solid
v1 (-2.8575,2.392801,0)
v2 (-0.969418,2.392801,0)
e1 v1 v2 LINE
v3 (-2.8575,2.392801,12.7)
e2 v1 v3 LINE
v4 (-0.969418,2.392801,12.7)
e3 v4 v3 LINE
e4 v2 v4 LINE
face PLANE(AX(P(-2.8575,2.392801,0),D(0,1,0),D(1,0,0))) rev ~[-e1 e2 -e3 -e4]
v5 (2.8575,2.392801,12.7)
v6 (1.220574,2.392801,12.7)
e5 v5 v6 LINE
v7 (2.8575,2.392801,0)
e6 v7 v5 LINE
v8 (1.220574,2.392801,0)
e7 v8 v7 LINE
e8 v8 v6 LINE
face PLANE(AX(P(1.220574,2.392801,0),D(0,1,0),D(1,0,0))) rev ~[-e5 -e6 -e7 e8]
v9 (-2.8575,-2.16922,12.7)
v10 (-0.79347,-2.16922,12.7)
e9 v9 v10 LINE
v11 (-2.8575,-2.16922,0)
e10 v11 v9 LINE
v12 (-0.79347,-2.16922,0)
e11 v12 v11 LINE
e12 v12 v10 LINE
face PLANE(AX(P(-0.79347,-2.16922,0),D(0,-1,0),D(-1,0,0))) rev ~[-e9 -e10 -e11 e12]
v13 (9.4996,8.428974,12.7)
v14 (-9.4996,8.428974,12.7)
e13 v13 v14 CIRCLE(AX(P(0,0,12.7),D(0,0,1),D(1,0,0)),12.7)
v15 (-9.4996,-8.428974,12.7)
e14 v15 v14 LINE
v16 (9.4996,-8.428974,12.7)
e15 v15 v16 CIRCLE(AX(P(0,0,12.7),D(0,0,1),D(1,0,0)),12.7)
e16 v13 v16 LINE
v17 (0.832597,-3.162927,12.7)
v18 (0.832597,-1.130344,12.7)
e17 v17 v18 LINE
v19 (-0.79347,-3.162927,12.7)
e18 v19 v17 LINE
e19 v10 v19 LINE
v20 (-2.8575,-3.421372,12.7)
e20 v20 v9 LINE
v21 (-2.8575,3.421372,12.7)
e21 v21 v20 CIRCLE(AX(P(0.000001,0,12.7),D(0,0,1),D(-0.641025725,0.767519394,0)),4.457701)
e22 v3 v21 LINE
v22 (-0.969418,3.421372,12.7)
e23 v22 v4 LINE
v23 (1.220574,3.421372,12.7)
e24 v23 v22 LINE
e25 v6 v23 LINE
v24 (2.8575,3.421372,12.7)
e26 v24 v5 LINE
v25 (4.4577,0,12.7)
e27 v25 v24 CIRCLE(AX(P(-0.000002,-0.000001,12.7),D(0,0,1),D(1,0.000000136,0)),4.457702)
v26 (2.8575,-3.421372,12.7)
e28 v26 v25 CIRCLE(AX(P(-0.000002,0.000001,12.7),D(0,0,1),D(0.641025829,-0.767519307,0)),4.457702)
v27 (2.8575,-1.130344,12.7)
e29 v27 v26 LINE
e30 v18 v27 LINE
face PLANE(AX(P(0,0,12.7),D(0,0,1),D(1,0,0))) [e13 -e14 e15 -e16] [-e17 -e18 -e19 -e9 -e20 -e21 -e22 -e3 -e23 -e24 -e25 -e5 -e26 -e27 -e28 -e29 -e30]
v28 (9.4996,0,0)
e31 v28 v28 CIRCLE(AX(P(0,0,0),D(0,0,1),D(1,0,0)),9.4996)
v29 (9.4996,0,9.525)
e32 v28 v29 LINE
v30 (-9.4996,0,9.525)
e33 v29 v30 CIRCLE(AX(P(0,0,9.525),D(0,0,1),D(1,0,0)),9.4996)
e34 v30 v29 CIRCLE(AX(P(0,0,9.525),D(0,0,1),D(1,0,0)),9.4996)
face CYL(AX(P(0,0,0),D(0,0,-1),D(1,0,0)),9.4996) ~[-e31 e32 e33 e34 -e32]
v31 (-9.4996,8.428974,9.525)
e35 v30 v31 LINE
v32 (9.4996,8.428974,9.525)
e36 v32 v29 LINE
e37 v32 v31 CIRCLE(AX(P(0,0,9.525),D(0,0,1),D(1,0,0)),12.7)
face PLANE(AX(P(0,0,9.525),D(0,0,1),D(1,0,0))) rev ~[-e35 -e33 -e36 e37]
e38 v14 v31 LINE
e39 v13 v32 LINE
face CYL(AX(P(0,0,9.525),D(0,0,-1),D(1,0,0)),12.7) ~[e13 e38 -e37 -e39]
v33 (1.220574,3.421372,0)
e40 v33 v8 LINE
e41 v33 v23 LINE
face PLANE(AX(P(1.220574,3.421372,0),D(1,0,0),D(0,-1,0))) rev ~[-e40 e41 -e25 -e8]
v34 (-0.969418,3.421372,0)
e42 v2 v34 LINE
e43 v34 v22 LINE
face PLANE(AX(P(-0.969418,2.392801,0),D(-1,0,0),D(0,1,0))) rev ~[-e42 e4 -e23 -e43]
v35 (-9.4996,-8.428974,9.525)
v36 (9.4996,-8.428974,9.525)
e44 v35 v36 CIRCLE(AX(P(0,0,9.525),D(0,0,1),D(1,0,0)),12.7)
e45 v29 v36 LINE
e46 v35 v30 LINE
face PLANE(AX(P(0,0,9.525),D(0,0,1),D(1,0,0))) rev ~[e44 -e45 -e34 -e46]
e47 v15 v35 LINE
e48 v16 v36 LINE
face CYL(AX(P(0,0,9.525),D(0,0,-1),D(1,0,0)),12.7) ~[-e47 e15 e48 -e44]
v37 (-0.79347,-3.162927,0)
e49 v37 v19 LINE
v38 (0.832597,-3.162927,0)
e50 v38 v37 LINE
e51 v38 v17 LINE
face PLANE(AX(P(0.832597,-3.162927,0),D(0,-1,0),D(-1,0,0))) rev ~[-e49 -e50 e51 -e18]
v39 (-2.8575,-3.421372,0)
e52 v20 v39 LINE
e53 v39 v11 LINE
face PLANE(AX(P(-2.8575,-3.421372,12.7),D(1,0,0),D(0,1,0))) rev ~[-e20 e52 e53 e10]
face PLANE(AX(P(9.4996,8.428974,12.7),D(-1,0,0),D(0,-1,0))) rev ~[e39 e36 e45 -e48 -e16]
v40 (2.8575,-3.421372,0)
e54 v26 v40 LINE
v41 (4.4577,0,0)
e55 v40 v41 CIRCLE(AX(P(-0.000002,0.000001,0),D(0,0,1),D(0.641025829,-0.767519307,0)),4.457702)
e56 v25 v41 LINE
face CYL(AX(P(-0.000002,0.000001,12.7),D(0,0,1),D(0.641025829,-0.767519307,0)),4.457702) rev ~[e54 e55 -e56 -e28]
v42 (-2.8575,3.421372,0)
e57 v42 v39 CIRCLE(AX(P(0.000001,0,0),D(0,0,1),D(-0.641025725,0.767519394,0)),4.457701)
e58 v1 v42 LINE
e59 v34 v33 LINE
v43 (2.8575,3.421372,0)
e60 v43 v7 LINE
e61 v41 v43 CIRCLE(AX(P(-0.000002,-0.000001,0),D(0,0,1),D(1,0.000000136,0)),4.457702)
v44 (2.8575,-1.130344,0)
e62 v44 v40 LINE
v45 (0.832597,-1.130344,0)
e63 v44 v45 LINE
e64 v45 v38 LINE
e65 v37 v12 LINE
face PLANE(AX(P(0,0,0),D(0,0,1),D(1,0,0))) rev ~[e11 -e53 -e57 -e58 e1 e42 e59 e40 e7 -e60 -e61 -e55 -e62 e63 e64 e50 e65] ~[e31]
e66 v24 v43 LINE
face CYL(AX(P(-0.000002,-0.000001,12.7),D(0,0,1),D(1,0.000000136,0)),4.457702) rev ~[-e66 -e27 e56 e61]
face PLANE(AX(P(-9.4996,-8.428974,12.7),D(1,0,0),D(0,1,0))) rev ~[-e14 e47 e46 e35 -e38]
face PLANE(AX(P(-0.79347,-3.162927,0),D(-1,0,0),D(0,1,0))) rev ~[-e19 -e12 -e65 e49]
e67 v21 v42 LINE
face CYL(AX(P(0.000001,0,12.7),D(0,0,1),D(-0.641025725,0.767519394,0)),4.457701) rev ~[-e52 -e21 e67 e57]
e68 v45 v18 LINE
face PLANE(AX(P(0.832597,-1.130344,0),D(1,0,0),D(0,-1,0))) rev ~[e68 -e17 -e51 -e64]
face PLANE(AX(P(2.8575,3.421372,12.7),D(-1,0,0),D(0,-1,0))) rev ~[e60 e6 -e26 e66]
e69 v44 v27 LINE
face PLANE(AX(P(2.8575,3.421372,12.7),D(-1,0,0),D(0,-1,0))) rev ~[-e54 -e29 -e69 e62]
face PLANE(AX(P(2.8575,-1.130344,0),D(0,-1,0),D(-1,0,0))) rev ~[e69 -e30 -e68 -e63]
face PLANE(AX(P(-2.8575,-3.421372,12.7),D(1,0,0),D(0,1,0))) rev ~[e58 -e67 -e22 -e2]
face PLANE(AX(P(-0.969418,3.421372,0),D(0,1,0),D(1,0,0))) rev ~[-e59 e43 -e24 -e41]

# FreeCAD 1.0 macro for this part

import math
import FreeCAD as App
import Part
import Sketcher

V = App.Vector
Q = App.Units.Quantity

doc = App.newDocument("Part")
body = doc.addObject("PartDesign::Body", "Body")

# Sketch on XY plane
sketch1 = body.newObject("Sketcher::SketchObject", "Sketch")
sketch1.AttachmentSupport = (doc.getObject("XY_Plane"), [""])
sketch1.MapMode = "FlatFace"
sketch1.addGeometry(Part.Circle(V(0, 0, 0), V(0, 0, 1), 9), False)
sketch1.addConstraint(Sketcher.Constraint("Coincident", 0, 3, -1, 1))
sketch1.addConstraint(Sketcher.Constraint("Diameter", 0, Q("0.748 in")))
pad1 = body.newObject("PartDesign::Pad", "Pad")
pad1.Profile = sketch1
pad1.Length = Q("0.375 in")

# Sketch on XY plane
sketch2 = body.newObject("Sketcher::SketchObject", "Sketch001")
sketch2.AttachmentSupport = (doc.getObject("XY_Plane"), [""])
sketch2.MapMode = "FlatFace"
sketch2.AttachmentOffset = App.Placement(V(0, 0, 0.375 * 25.4), App.Rotation())
sketch2.addGeometry(Part.Circle(V(0, 0, 0), V(0, 0, 1), 13), False)
sketch2.addConstraint(Sketcher.Constraint("Coincident", 0, 3, -1, 1))
sketch2.addConstraint(Sketcher.Constraint("Diameter", 0, Q("1 in")))
pad2 = body.newObject("PartDesign::Pad", "Pad001")
pad2.Profile = sketch2
pad2.Length = Q("0.125 in")

# Sketch on XY plane
sketch3 = body.newObject("Sketcher::SketchObject", "Sketch002")
sketch3.AttachmentSupport = (doc.getObject("XY_Plane"), [""])
sketch3.MapMode = "FlatFace"
sketch3.AttachmentOffset = App.Placement(V(0, 0, 0.5 * 25.4), App.Rotation())
sketch3.addGeometry(Part.ArcOfCircle(Part.Circle(V(0, 0, 0), V(0, 0, 1), 13), math.radians(138), math.radians(222)), False)
sketch3.addGeometry(Part.LineSegment(V(-9, -8, 0), V(-9, 8, 0)), False)
sketch3.addGeometry(Part.LineSegment(V(9, 8, 0), V(9, -8, 0)), False)
sketch3.addGeometry(Part.ArcOfCircle(Part.Circle(V(0, 0, 0), V(0, 0, 1), 13), math.radians(-42), math.radians(0)), False)
sketch3.addGeometry(Part.ArcOfCircle(Part.Circle(V(0, 0, 0), V(0, 0, 1), 13), math.radians(0), math.radians(42)), False)
sketch3.addConstraint(Sketcher.Constraint("Coincident", 0, 1, 1, 2))
sketch3.addConstraint(Sketcher.Constraint("Coincident", 1, 1, 0, 2))
sketch3.addConstraint(Sketcher.Constraint("Coincident", 2, 2, 3, 1))
sketch3.addConstraint(Sketcher.Constraint("Tangent", 3, 2, 4, 1))
sketch3.addConstraint(Sketcher.Constraint("Coincident", 4, 2, 2, 1))
sketch3.addConstraint(Sketcher.Constraint("Vertical", 1))
sketch3.addConstraint(Sketcher.Constraint("Vertical", 2))
sketch3.addConstraint(Sketcher.Constraint("Coincident", 0, 3, -1, 1))
sketch3.addConstraint(Sketcher.Constraint("Coincident", 3, 3, -1, 1))
sketch3.addConstraint(Sketcher.Constraint("Equal", 3, 4))
sketch3.addConstraint(Sketcher.Constraint("Symmetric", 0, 1, 2, 2, -1, 1))
sketch3.addConstraint(Sketcher.Constraint("PointOnObject", 3, 2, -1))
sketch3.addConstraint(Sketcher.Constraint("Radius", 0, Q("0.5 in")))
sketch3.addConstraint(Sketcher.Constraint("DistanceX", 0, 1, -1, 1, Q("0.374 in")))
pocket1 = body.newObject("PartDesign::Pocket", "Pocket")
pocket1.Profile = sketch3
pocket1.Length = Q("1 in")

# Sketch on XY plane
sketch4 = body.newObject("Sketcher::SketchObject", "Sketch003")
sketch4.AttachmentSupport = (doc.getObject("XY_Plane"), [""])
sketch4.MapMode = "FlatFace"
sketch4.AttachmentOffset = App.Placement(V(0, 0, 0.5 * 25.4), App.Rotation())
sketch4.addGeometry(Part.ArcOfCircle(Part.Circle(V(0, 0, 0), V(0, 0, 1), 4.5), math.radians(-50), math.radians(0)), False)
sketch4.addGeometry(Part.ArcOfCircle(Part.Circle(V(0, 0, 0), V(0, 0, 1), 4.5), math.radians(0), math.radians(50)), False)
sketch4.addGeometry(Part.LineSegment(V(2.9, 3.4, 0), V(2.9, -3.4, 0)), False)
sketch4.addGeometry(Part.LineSegment(V(-2.9, -3.4, 0), V(-2.9, 3.4, 0)), False)
sketch4.addGeometry(Part.ArcOfCircle(Part.Circle(V(0, 0, 0), V(0, 0, 1), 4.5), math.radians(130), math.radians(230)), False)
sketch4.addConstraint(Sketcher.Constraint("Tangent", 0, 2, 1, 1))
sketch4.addConstraint(Sketcher.Constraint("Coincident", 1, 2, 2, 1))
sketch4.addConstraint(Sketcher.Constraint("Coincident", 2, 2, 0, 1))
sketch4.addConstraint(Sketcher.Constraint("Coincident", 3, 1, 4, 2))
sketch4.addConstraint(Sketcher.Constraint("Coincident", 4, 1, 3, 2))
sketch4.addConstraint(Sketcher.Constraint("Vertical", 2))
sketch4.addConstraint(Sketcher.Constraint("Vertical", 3))
sketch4.addConstraint(Sketcher.Constraint("Coincident", 0, 3, -1, 1))
sketch4.addConstraint(Sketcher.Constraint("Coincident", 4, 3, -1, 1))
sketch4.addConstraint(Sketcher.Constraint("Equal", 0, 1))
sketch4.addConstraint(Sketcher.Constraint("Equal", 1, 4))
sketch4.addConstraint(Sketcher.Constraint("PointOnObject", 0, 2, -1))
sketch4.addConstraint(Sketcher.Constraint("Horizontal", 2, 2, 3, 1))
sketch4.addConstraint(Sketcher.Constraint("Radius", 0, Q("0.1755001 in")))
sketch4.addConstraint(Sketcher.Constraint("DistanceX", 1, 2, 0, 2, Q("0.063 in")))
pocket2 = body.newObject("PartDesign::Pocket", "Pocket001")
pocket2.Profile = sketch4
pocket2.Length = Q("1 in")

# Sketch on XY plane
sketch5 = body.newObject("Sketcher::SketchObject", "Sketch004")
sketch5.AttachmentSupport = (doc.getObject("XY_Plane"), [""])
sketch5.MapMode = "FlatFace"
sketch5.addGeometry(Part.LineSegment(V(-2.9, -2.2, 0), V(-2.9, 2.4, 0)), False)
sketch5.addGeometry(Part.LineSegment(V(-2.9, 2.4, 0), V(-1, 2.4, 0)), False)
sketch5.addGeometry(Part.LineSegment(V(-1, 2.4, 0), V(-1, 3.4, 0)), False)
sketch5.addGeometry(Part.LineSegment(V(-1, 3.4, 0), V(1.2, 3.4, 0)), False)
sketch5.addGeometry(Part.LineSegment(V(1.2, 3.4, 0), V(1.2, 2.4, 0)), False)
sketch5.addGeometry(Part.LineSegment(V(1.2, 2.4, 0), V(2.9, 2.4, 0)), False)
sketch5.addGeometry(Part.LineSegment(V(2.9, 2.4, 0), V(2.9, -1.1, 0)), False)
sketch5.addGeometry(Part.LineSegment(V(2.9, -1.1, 0), V(0.8, -1.1, 0)), False)
sketch5.addGeometry(Part.LineSegment(V(0.8, -1.1, 0), V(0.8, -3.2, 0)), False)
sketch5.addGeometry(Part.LineSegment(V(0.8, -3.2, 0), V(-0.8, -3.2, 0)), False)
sketch5.addGeometry(Part.LineSegment(V(-0.8, -3.2, 0), V(-0.8, -2.2, 0)), False)
sketch5.addGeometry(Part.LineSegment(V(-0.8, -2.2, 0), V(-2.9, -2.2, 0)), False)
sketch5.addConstraint(Sketcher.Constraint("Coincident", 0, 2, 1, 1))
sketch5.addConstraint(Sketcher.Constraint("Coincident", 1, 2, 2, 1))
sketch5.addConstraint(Sketcher.Constraint("Coincident", 2, 2, 3, 1))
sketch5.addConstraint(Sketcher.Constraint("Coincident", 3, 2, 4, 1))
sketch5.addConstraint(Sketcher.Constraint("Coincident", 4, 2, 5, 1))
sketch5.addConstraint(Sketcher.Constraint("Coincident", 5, 2, 6, 1))
sketch5.addConstraint(Sketcher.Constraint("Coincident", 6, 2, 7, 1))
sketch5.addConstraint(Sketcher.Constraint("Coincident", 7, 2, 8, 1))
sketch5.addConstraint(Sketcher.Constraint("Coincident", 8, 2, 9, 1))
sketch5.addConstraint(Sketcher.Constraint("Coincident", 9, 2, 10, 1))
sketch5.addConstraint(Sketcher.Constraint("Coincident", 10, 2, 11, 1))
sketch5.addConstraint(Sketcher.Constraint("Coincident", 11, 2, 0, 1))
sketch5.addConstraint(Sketcher.Constraint("Vertical", 0))
sketch5.addConstraint(Sketcher.Constraint("Horizontal", 1))
sketch5.addConstraint(Sketcher.Constraint("Vertical", 2))
sketch5.addConstraint(Sketcher.Constraint("Horizontal", 3))
sketch5.addConstraint(Sketcher.Constraint("Vertical", 4))
sketch5.addConstraint(Sketcher.Constraint("Horizontal", 5))
sketch5.addConstraint(Sketcher.Constraint("Vertical", 6))
sketch5.addConstraint(Sketcher.Constraint("Horizontal", 7))
sketch5.addConstraint(Sketcher.Constraint("Vertical", 8))
sketch5.addConstraint(Sketcher.Constraint("Horizontal", 9))
sketch5.addConstraint(Sketcher.Constraint("Vertical", 10))
sketch5.addConstraint(Sketcher.Constraint("Horizontal", 11))
sketch5.addConstraint(Sketcher.Constraint("Symmetric", 0, 2, 5, 2, -2))
sketch5.addConstraint(Sketcher.Constraint("DistanceX", 0, 2, 5, 2, Q("0.225 in")))
sketch5.addConstraint(Sketcher.Constraint("DistanceX", 1, 1, 1, 2, 1.888082))
sketch5.addConstraint(Sketcher.Constraint("DistanceX", 11, 2, 11, 1, 2.06403))
sketch5.addConstraint(Sketcher.Constraint("DistanceY", 0, 1, 0, 2, 4.562021))
sketch5.addConstraint(Sketcher.Constraint("DistanceY", 2, 1, 2, 2, 1.028571))
sketch5.addConstraint(Sketcher.Constraint("DistanceY", -1, 1, 0, 2, 2.392801))
sketch5.addConstraint(Sketcher.Constraint("DistanceX", 3, 1, 3, 2, 2.189992))
sketch5.addConstraint(Sketcher.Constraint("DistanceX", 7, 2, 7, 1, 2.024903))
sketch5.addConstraint(Sketcher.Constraint("DistanceY", 6, 2, 6, 1, 3.523145))
sketch5.addConstraint(Sketcher.Constraint("DistanceY", 8, 2, 8, 1, 2.032583))
pocket3 = body.newObject("PartDesign::Pocket", "Pocket002")
pocket3.Profile = sketch5
pocket3.Length = Q("1 in")
pocket3.Reversed = True

doc.recompute()
